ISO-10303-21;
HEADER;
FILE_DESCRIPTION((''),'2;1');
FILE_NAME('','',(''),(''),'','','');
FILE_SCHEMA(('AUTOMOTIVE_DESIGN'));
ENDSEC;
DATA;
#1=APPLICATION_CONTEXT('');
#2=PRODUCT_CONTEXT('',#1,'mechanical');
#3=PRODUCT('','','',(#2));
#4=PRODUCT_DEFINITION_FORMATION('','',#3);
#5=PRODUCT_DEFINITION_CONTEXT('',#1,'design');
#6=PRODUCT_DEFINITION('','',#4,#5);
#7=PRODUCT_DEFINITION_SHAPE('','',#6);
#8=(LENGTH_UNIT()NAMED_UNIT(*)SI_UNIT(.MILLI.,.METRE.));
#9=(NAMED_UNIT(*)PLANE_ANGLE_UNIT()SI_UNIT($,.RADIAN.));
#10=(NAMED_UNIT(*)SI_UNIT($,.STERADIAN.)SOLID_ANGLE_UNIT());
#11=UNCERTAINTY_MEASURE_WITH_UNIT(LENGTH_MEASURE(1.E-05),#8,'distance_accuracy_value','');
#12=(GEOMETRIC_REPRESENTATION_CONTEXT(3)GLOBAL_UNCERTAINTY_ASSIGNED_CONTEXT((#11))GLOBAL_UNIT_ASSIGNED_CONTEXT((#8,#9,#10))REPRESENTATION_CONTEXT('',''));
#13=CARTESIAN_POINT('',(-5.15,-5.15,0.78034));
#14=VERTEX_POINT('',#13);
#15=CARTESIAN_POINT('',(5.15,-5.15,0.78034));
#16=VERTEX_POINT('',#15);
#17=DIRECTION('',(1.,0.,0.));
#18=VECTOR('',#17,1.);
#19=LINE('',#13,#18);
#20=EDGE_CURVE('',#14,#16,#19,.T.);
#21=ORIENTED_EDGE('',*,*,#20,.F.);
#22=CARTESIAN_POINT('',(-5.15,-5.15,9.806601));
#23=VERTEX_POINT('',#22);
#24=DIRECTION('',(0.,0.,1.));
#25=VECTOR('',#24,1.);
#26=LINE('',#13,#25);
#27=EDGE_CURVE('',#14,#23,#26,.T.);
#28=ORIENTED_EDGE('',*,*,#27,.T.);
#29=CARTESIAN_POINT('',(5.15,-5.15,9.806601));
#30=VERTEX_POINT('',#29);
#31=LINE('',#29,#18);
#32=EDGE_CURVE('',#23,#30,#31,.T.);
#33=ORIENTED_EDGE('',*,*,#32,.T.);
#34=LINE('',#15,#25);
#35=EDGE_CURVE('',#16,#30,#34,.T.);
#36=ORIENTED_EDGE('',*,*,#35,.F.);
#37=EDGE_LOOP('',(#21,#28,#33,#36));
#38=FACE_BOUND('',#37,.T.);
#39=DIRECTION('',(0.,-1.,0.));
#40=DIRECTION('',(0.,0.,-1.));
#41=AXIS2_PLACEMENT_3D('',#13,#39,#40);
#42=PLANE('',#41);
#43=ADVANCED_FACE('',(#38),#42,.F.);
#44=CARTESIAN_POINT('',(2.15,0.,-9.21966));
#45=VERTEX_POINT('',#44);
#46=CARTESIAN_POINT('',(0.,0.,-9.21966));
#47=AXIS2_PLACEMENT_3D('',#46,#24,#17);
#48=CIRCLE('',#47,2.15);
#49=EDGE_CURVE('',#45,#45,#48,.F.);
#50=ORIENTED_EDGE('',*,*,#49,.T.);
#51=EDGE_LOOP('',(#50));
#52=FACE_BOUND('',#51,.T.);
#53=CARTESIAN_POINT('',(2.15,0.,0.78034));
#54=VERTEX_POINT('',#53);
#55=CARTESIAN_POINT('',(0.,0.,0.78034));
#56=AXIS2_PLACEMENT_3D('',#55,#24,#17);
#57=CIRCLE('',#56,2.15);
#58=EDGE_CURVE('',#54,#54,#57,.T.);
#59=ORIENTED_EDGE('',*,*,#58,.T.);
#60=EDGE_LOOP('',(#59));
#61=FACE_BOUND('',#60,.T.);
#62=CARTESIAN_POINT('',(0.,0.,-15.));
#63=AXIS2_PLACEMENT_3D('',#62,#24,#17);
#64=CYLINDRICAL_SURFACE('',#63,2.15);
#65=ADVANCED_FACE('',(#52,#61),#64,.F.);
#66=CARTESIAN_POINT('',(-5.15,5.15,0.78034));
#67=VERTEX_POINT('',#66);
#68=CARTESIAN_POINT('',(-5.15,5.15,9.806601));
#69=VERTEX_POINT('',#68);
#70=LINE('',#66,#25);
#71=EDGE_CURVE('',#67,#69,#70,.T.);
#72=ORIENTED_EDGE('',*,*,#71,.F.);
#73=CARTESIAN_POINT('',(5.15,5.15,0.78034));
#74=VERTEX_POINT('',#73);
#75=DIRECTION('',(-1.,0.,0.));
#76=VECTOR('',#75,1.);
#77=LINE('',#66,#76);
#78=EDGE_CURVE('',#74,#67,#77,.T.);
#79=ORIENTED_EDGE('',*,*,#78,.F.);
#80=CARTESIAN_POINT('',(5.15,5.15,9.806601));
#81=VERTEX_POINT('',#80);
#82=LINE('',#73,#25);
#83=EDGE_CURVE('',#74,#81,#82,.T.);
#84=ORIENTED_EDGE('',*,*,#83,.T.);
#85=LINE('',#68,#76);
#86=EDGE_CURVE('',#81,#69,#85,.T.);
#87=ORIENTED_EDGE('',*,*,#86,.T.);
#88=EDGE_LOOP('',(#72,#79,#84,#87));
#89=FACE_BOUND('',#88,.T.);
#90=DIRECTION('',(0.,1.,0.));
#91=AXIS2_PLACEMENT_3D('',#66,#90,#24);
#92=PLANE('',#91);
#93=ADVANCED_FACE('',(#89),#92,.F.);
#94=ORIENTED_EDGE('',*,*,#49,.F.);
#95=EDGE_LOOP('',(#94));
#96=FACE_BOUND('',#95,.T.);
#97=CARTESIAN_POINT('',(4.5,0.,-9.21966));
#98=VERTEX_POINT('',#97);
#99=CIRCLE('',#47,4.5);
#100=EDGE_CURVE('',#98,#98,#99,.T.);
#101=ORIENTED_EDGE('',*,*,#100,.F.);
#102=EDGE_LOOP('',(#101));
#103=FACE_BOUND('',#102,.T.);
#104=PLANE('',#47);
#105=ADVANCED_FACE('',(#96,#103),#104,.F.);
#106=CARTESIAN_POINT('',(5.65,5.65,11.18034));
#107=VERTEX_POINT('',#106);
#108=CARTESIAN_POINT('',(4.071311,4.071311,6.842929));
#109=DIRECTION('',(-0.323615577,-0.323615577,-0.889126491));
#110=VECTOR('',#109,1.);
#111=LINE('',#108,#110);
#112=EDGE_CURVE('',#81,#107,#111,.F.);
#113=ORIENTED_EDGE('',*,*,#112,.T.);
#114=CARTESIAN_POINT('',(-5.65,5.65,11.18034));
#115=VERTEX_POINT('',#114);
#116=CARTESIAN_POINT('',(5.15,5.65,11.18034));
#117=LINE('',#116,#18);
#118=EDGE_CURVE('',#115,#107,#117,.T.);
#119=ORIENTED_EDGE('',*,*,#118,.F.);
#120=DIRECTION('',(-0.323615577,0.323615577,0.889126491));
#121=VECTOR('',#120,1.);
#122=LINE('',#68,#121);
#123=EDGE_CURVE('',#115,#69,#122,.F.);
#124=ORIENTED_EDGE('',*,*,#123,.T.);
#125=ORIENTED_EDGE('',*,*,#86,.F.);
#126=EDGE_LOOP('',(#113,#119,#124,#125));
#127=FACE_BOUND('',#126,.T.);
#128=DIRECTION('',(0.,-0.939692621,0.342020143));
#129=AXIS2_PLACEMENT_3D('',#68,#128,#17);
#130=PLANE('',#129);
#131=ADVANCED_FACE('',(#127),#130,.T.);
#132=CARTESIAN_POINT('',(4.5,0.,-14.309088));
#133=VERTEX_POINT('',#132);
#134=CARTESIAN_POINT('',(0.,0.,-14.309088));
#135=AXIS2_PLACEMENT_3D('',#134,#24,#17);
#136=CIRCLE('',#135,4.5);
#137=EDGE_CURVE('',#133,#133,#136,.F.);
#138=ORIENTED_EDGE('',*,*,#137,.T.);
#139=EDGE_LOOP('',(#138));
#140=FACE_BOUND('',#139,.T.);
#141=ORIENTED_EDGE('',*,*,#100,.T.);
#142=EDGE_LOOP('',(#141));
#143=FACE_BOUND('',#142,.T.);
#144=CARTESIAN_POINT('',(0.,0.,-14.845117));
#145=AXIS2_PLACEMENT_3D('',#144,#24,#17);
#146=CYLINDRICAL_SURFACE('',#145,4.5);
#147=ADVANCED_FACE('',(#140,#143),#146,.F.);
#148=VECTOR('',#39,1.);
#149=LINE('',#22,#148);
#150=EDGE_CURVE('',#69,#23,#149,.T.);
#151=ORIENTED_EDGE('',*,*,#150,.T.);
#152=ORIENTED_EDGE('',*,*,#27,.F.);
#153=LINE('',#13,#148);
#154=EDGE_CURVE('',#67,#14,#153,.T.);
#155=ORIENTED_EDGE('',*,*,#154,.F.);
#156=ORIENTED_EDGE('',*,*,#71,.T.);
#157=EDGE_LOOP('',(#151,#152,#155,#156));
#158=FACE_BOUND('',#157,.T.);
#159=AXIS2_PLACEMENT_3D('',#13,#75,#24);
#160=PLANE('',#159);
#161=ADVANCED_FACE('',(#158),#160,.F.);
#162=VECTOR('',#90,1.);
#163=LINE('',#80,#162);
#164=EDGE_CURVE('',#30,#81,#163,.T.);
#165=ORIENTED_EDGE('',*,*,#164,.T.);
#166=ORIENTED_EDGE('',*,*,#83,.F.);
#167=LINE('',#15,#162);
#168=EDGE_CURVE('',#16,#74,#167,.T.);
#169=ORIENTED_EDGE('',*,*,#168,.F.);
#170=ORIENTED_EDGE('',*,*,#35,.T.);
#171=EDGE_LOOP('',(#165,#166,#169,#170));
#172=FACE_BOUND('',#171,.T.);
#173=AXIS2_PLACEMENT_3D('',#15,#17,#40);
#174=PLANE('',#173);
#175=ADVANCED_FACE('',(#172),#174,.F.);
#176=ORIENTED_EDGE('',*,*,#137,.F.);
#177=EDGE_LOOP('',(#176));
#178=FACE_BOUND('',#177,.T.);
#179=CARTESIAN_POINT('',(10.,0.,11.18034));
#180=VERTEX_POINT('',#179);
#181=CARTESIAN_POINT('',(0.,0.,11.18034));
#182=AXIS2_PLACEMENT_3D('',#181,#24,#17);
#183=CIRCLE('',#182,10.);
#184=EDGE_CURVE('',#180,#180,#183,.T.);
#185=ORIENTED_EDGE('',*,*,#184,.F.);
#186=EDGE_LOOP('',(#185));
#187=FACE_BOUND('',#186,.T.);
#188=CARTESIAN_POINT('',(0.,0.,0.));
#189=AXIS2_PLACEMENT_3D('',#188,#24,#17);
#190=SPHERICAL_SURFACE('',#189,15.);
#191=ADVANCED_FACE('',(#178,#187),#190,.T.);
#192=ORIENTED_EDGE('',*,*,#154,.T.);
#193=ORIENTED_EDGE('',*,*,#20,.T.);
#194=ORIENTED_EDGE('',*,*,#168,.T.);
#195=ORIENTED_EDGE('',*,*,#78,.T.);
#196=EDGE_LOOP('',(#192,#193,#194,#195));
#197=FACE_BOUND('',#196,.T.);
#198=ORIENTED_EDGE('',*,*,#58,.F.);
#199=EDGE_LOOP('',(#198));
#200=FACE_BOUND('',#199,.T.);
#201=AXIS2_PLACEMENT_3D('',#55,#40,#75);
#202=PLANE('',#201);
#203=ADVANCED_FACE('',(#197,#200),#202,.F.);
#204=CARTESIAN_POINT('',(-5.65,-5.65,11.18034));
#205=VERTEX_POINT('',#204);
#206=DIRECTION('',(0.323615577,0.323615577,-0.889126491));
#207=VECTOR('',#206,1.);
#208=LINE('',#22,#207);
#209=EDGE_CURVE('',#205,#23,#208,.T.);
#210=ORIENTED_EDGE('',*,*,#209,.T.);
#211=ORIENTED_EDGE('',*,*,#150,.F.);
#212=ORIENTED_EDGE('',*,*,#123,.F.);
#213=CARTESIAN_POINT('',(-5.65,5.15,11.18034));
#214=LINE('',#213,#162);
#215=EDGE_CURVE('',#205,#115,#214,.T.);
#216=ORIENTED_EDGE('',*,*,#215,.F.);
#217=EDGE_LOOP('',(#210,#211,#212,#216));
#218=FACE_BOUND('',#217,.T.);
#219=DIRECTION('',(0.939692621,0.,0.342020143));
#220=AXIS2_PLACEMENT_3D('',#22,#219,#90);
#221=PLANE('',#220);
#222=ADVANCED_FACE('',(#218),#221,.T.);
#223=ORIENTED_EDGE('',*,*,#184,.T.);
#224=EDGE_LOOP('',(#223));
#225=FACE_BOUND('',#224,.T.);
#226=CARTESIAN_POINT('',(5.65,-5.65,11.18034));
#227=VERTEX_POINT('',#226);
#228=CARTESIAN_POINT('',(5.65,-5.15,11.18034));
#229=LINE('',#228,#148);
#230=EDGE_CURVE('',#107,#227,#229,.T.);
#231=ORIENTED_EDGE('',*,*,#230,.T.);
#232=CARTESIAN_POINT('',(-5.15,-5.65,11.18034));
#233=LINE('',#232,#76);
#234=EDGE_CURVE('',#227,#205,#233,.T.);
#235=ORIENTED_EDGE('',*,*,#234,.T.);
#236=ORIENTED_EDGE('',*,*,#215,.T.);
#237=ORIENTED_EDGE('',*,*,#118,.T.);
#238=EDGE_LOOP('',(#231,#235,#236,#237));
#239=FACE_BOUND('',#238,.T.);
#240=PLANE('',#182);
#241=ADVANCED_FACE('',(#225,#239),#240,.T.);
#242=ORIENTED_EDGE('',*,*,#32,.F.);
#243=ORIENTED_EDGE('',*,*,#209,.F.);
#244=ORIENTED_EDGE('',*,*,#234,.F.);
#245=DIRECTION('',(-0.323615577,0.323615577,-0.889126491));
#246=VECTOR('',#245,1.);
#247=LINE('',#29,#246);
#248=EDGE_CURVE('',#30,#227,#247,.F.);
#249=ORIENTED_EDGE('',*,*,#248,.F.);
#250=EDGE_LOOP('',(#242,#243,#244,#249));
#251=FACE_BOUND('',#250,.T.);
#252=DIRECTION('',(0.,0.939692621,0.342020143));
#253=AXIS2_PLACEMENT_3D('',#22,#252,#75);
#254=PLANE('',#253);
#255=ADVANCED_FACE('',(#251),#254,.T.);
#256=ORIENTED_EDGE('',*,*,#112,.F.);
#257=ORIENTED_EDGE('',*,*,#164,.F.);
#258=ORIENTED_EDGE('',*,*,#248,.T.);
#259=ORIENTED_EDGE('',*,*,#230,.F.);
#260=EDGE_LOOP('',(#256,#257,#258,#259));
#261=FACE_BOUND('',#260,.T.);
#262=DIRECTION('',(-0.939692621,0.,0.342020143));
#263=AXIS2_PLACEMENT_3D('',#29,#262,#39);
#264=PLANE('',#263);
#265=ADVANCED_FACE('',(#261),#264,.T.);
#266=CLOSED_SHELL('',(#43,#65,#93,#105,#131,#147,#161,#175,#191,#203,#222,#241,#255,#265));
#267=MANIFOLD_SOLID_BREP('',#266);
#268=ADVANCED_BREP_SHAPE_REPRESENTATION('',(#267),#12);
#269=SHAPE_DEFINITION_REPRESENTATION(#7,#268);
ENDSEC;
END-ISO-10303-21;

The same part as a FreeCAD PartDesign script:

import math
import FreeCAD as App
import Part
import Sketcher

V = App.Vector
Q = App.Units.Quantity


def edges_at(feature, points):
    """Names of the edges that pass closest to the given points."""
    edges = feature.Shape.Edges
    near = lambda p: min(range(len(edges)), key=lambda i: edges[i].distToShape(Part.Vertex(*p))[0])
    return sorted({f"Edge{near(p) + 1}" for p in points})

doc = App.newDocument("Part")
params = doc.addObject("Spreadsheet::Sheet", "Params")
for row, (alias, value) in enumerate([
    ("sketch1_radius", "15 mm"),
    ("sketch1_width", "10 mm"),
    ("revolution_angle", "360 deg"),
    ("sketch2_width", "10.3 mm"),
    ("pocket1_length", "10.4 mm"),
    ("sketch3_diameter", "4.3 mm"),
    ("sketch4_diameter", "9 mm"),
    ("chamfer_size", "0.5 mm"),
    ("chamfer_size2", "1.373739 mm"),
], start=1):
    params.set(f"A{row}", alias)
    params.set(f"B{row}", "=" + value)
    params.setAlias(f"B{row}", alias)

body = doc.addObject("PartDesign::Body", "Body")

sketch1 = doc.addObject("Sketcher::SketchObject", "Sketch")
body.addObject(sketch1)
sketch1.AttachmentSupport = (doc.XZ_Plane, [""])
sketch1.MapMode = "FlatFace"
sketch1.addGeometry(Part.LineSegment(V(0, -15, 0), V(0, 11, 0)), False)
sketch1.addGeometry(Part.LineSegment(V(0, 11, 0), V(10, 11, 0)), False)
sketch1.addGeometry(Part.ArcOfCircle(Part.Circle(V(0, 0, 0), V(0, 0, 1), 15), math.radians(-90), math.radians(48)), False)
sketch1.addConstraint(Sketcher.Constraint("Coincident", 0, 2, 1, 1))
sketch1.addConstraint(Sketcher.Constraint("Coincident", 1, 2, 2, 2))
sketch1.addConstraint(Sketcher.Constraint("Coincident", 2, 1, 0, 1))
sketch1.addConstraint(Sketcher.Constraint("Vertical", 0))
sketch1.addConstraint(Sketcher.Constraint("Horizontal", 1))
sketch1.addConstraint(Sketcher.Constraint("Coincident", 2, 3, -1, 1))
sketch1.addConstraint(Sketcher.Constraint("PointOnObject", 0, 2, -2))
sketch1.addConstraint(Sketcher.Constraint("Radius", 2, Q("15 mm")))
sketch1.addConstraint(Sketcher.Constraint("DistanceX", 1, 1, 1, 2, Q("10 mm")))
sketch1.setExpression("Constraints[7]", "Params.sketch1_radius")
sketch1.setExpression("Constraints[8]", "Params.sketch1_width")
revolution = doc.addObject("PartDesign::Revolution", "Revolution")
body.addObject(revolution)
revolution.Profile = sketch1
revolution.ReferenceAxis = (sketch1, ["V_Axis"])
revolution.setExpression("Angle", "Params.revolution_angle")

sketch2 = doc.addObject("Sketcher::SketchObject", "Sketch001")
body.addObject(sketch2)
sketch2.AttachmentSupport = (doc.XY_Plane, [""])
sketch2.MapMode = "FlatFace"
sketch2.AttachmentOffset = App.Placement(V(0, 0, 11.18034), App.Rotation())
sketch2.addGeometry(Part.LineSegment(V(-5, 5, 0), V(-5, -5, 0)), False)
sketch2.addGeometry(Part.LineSegment(V(-5, -5, 0), V(5, -5, 0)), False)
sketch2.addGeometry(Part.LineSegment(V(5, -5, 0), V(5, 5, 0)), False)
sketch2.addGeometry(Part.LineSegment(V(5, 5, 0), V(-5, 5, 0)), False)
sketch2.addConstraint(Sketcher.Constraint("Coincident", 0, 2, 1, 1))
sketch2.addConstraint(Sketcher.Constraint("Coincident", 1, 2, 2, 1))
sketch2.addConstraint(Sketcher.Constraint("Coincident", 2, 2, 3, 1))
sketch2.addConstraint(Sketcher.Constraint("Coincident", 3, 2, 0, 1))
sketch2.addConstraint(Sketcher.Constraint("Vertical", 0))
sketch2.addConstraint(Sketcher.Constraint("Horizontal", 1))
sketch2.addConstraint(Sketcher.Constraint("Vertical", 2))
sketch2.addConstraint(Sketcher.Constraint("Horizontal", 3))
sketch2.addConstraint(Sketcher.Constraint("Symmetric", 0, 2, 2, 2, -1, 1))
sketch2.addConstraint(Sketcher.Constraint("Equal", 3, 0))
sketch2.addConstraint(Sketcher.Constraint("DistanceX", 1, 1, 1, 2, Q("10.3 mm")))
sketch2.setExpression("Constraints[10]", "Params.sketch2_width")
pocket1 = doc.addObject("PartDesign::Pocket", "Pocket")
body.addObject(pocket1)
pocket1.Profile = sketch2
pocket1.setExpression("Length", "Params.pocket1_length")

sketch3 = doc.addObject("Sketcher::SketchObject", "Sketch002")
body.addObject(sketch3)
sketch3.AttachmentSupport = (doc.XY_Plane, [""])
sketch3.MapMode = "FlatFace"
sketch3.AttachmentOffset = App.Placement(V(0, 0, 0.78034), App.Rotation())
sketch3.addGeometry(Part.Circle(V(0, 0, 0), V(0, 0, 1), 2.1), False)
sketch3.addConstraint(Sketcher.Constraint("Coincident", 0, 3, -1, 1))
sketch3.addConstraint(Sketcher.Constraint("Diameter", 0, Q("4.3 mm")))
sketch3.setExpression("Constraints[1]", "Params.sketch3_diameter")
pocket2 = doc.addObject("PartDesign::Pocket", "Pocket001")
body.addObject(pocket2)
pocket2.Profile = sketch3
pocket2.Type = "ThroughAll"

sketch4 = doc.addObject("Sketcher::SketchObject", "Sketch003")
body.addObject(sketch4)
sketch4.AttachmentSupport = (doc.XY_Plane, [""])
sketch4.MapMode = "FlatFace"
sketch4.AttachmentOffset = App.Placement(V(0, 0, -9.21966), App.Rotation())
sketch4.addGeometry(Part.Circle(V(0, 0, 0), V(0, 0, 1), 4.5), False)
sketch4.addConstraint(Sketcher.Constraint("Coincident", 0, 3, -1, 1))
sketch4.addConstraint(Sketcher.Constraint("Diameter", 0, Q("9 mm")))
sketch4.setExpression("Constraints[1]", "Params.sketch4_diameter")
pocket3 = doc.addObject("PartDesign::Pocket", "Pocket002")
body.addObject(pocket3)
pocket3.Profile = sketch4
pocket3.Type = "ThroughAll"
doc.recompute()

chamfer = doc.addObject("PartDesign::Chamfer", "Chamfer")
body.addObject(chamfer)
chamfer.Base = (pocket3, edges_at(pocket3, [
    (5.15, 0, 11.18),
    (0, 5.15, 11.18),
    (-5.15, 0, 11.18),
    (0, -5.15, 11.18),
]))
chamfer.ChamferType = "Two distances"
chamfer.setExpression("Size", "Params.chamfer_size")
chamfer.setExpression("Size2", "Params.chamfer_size2")

doc.recompute()
